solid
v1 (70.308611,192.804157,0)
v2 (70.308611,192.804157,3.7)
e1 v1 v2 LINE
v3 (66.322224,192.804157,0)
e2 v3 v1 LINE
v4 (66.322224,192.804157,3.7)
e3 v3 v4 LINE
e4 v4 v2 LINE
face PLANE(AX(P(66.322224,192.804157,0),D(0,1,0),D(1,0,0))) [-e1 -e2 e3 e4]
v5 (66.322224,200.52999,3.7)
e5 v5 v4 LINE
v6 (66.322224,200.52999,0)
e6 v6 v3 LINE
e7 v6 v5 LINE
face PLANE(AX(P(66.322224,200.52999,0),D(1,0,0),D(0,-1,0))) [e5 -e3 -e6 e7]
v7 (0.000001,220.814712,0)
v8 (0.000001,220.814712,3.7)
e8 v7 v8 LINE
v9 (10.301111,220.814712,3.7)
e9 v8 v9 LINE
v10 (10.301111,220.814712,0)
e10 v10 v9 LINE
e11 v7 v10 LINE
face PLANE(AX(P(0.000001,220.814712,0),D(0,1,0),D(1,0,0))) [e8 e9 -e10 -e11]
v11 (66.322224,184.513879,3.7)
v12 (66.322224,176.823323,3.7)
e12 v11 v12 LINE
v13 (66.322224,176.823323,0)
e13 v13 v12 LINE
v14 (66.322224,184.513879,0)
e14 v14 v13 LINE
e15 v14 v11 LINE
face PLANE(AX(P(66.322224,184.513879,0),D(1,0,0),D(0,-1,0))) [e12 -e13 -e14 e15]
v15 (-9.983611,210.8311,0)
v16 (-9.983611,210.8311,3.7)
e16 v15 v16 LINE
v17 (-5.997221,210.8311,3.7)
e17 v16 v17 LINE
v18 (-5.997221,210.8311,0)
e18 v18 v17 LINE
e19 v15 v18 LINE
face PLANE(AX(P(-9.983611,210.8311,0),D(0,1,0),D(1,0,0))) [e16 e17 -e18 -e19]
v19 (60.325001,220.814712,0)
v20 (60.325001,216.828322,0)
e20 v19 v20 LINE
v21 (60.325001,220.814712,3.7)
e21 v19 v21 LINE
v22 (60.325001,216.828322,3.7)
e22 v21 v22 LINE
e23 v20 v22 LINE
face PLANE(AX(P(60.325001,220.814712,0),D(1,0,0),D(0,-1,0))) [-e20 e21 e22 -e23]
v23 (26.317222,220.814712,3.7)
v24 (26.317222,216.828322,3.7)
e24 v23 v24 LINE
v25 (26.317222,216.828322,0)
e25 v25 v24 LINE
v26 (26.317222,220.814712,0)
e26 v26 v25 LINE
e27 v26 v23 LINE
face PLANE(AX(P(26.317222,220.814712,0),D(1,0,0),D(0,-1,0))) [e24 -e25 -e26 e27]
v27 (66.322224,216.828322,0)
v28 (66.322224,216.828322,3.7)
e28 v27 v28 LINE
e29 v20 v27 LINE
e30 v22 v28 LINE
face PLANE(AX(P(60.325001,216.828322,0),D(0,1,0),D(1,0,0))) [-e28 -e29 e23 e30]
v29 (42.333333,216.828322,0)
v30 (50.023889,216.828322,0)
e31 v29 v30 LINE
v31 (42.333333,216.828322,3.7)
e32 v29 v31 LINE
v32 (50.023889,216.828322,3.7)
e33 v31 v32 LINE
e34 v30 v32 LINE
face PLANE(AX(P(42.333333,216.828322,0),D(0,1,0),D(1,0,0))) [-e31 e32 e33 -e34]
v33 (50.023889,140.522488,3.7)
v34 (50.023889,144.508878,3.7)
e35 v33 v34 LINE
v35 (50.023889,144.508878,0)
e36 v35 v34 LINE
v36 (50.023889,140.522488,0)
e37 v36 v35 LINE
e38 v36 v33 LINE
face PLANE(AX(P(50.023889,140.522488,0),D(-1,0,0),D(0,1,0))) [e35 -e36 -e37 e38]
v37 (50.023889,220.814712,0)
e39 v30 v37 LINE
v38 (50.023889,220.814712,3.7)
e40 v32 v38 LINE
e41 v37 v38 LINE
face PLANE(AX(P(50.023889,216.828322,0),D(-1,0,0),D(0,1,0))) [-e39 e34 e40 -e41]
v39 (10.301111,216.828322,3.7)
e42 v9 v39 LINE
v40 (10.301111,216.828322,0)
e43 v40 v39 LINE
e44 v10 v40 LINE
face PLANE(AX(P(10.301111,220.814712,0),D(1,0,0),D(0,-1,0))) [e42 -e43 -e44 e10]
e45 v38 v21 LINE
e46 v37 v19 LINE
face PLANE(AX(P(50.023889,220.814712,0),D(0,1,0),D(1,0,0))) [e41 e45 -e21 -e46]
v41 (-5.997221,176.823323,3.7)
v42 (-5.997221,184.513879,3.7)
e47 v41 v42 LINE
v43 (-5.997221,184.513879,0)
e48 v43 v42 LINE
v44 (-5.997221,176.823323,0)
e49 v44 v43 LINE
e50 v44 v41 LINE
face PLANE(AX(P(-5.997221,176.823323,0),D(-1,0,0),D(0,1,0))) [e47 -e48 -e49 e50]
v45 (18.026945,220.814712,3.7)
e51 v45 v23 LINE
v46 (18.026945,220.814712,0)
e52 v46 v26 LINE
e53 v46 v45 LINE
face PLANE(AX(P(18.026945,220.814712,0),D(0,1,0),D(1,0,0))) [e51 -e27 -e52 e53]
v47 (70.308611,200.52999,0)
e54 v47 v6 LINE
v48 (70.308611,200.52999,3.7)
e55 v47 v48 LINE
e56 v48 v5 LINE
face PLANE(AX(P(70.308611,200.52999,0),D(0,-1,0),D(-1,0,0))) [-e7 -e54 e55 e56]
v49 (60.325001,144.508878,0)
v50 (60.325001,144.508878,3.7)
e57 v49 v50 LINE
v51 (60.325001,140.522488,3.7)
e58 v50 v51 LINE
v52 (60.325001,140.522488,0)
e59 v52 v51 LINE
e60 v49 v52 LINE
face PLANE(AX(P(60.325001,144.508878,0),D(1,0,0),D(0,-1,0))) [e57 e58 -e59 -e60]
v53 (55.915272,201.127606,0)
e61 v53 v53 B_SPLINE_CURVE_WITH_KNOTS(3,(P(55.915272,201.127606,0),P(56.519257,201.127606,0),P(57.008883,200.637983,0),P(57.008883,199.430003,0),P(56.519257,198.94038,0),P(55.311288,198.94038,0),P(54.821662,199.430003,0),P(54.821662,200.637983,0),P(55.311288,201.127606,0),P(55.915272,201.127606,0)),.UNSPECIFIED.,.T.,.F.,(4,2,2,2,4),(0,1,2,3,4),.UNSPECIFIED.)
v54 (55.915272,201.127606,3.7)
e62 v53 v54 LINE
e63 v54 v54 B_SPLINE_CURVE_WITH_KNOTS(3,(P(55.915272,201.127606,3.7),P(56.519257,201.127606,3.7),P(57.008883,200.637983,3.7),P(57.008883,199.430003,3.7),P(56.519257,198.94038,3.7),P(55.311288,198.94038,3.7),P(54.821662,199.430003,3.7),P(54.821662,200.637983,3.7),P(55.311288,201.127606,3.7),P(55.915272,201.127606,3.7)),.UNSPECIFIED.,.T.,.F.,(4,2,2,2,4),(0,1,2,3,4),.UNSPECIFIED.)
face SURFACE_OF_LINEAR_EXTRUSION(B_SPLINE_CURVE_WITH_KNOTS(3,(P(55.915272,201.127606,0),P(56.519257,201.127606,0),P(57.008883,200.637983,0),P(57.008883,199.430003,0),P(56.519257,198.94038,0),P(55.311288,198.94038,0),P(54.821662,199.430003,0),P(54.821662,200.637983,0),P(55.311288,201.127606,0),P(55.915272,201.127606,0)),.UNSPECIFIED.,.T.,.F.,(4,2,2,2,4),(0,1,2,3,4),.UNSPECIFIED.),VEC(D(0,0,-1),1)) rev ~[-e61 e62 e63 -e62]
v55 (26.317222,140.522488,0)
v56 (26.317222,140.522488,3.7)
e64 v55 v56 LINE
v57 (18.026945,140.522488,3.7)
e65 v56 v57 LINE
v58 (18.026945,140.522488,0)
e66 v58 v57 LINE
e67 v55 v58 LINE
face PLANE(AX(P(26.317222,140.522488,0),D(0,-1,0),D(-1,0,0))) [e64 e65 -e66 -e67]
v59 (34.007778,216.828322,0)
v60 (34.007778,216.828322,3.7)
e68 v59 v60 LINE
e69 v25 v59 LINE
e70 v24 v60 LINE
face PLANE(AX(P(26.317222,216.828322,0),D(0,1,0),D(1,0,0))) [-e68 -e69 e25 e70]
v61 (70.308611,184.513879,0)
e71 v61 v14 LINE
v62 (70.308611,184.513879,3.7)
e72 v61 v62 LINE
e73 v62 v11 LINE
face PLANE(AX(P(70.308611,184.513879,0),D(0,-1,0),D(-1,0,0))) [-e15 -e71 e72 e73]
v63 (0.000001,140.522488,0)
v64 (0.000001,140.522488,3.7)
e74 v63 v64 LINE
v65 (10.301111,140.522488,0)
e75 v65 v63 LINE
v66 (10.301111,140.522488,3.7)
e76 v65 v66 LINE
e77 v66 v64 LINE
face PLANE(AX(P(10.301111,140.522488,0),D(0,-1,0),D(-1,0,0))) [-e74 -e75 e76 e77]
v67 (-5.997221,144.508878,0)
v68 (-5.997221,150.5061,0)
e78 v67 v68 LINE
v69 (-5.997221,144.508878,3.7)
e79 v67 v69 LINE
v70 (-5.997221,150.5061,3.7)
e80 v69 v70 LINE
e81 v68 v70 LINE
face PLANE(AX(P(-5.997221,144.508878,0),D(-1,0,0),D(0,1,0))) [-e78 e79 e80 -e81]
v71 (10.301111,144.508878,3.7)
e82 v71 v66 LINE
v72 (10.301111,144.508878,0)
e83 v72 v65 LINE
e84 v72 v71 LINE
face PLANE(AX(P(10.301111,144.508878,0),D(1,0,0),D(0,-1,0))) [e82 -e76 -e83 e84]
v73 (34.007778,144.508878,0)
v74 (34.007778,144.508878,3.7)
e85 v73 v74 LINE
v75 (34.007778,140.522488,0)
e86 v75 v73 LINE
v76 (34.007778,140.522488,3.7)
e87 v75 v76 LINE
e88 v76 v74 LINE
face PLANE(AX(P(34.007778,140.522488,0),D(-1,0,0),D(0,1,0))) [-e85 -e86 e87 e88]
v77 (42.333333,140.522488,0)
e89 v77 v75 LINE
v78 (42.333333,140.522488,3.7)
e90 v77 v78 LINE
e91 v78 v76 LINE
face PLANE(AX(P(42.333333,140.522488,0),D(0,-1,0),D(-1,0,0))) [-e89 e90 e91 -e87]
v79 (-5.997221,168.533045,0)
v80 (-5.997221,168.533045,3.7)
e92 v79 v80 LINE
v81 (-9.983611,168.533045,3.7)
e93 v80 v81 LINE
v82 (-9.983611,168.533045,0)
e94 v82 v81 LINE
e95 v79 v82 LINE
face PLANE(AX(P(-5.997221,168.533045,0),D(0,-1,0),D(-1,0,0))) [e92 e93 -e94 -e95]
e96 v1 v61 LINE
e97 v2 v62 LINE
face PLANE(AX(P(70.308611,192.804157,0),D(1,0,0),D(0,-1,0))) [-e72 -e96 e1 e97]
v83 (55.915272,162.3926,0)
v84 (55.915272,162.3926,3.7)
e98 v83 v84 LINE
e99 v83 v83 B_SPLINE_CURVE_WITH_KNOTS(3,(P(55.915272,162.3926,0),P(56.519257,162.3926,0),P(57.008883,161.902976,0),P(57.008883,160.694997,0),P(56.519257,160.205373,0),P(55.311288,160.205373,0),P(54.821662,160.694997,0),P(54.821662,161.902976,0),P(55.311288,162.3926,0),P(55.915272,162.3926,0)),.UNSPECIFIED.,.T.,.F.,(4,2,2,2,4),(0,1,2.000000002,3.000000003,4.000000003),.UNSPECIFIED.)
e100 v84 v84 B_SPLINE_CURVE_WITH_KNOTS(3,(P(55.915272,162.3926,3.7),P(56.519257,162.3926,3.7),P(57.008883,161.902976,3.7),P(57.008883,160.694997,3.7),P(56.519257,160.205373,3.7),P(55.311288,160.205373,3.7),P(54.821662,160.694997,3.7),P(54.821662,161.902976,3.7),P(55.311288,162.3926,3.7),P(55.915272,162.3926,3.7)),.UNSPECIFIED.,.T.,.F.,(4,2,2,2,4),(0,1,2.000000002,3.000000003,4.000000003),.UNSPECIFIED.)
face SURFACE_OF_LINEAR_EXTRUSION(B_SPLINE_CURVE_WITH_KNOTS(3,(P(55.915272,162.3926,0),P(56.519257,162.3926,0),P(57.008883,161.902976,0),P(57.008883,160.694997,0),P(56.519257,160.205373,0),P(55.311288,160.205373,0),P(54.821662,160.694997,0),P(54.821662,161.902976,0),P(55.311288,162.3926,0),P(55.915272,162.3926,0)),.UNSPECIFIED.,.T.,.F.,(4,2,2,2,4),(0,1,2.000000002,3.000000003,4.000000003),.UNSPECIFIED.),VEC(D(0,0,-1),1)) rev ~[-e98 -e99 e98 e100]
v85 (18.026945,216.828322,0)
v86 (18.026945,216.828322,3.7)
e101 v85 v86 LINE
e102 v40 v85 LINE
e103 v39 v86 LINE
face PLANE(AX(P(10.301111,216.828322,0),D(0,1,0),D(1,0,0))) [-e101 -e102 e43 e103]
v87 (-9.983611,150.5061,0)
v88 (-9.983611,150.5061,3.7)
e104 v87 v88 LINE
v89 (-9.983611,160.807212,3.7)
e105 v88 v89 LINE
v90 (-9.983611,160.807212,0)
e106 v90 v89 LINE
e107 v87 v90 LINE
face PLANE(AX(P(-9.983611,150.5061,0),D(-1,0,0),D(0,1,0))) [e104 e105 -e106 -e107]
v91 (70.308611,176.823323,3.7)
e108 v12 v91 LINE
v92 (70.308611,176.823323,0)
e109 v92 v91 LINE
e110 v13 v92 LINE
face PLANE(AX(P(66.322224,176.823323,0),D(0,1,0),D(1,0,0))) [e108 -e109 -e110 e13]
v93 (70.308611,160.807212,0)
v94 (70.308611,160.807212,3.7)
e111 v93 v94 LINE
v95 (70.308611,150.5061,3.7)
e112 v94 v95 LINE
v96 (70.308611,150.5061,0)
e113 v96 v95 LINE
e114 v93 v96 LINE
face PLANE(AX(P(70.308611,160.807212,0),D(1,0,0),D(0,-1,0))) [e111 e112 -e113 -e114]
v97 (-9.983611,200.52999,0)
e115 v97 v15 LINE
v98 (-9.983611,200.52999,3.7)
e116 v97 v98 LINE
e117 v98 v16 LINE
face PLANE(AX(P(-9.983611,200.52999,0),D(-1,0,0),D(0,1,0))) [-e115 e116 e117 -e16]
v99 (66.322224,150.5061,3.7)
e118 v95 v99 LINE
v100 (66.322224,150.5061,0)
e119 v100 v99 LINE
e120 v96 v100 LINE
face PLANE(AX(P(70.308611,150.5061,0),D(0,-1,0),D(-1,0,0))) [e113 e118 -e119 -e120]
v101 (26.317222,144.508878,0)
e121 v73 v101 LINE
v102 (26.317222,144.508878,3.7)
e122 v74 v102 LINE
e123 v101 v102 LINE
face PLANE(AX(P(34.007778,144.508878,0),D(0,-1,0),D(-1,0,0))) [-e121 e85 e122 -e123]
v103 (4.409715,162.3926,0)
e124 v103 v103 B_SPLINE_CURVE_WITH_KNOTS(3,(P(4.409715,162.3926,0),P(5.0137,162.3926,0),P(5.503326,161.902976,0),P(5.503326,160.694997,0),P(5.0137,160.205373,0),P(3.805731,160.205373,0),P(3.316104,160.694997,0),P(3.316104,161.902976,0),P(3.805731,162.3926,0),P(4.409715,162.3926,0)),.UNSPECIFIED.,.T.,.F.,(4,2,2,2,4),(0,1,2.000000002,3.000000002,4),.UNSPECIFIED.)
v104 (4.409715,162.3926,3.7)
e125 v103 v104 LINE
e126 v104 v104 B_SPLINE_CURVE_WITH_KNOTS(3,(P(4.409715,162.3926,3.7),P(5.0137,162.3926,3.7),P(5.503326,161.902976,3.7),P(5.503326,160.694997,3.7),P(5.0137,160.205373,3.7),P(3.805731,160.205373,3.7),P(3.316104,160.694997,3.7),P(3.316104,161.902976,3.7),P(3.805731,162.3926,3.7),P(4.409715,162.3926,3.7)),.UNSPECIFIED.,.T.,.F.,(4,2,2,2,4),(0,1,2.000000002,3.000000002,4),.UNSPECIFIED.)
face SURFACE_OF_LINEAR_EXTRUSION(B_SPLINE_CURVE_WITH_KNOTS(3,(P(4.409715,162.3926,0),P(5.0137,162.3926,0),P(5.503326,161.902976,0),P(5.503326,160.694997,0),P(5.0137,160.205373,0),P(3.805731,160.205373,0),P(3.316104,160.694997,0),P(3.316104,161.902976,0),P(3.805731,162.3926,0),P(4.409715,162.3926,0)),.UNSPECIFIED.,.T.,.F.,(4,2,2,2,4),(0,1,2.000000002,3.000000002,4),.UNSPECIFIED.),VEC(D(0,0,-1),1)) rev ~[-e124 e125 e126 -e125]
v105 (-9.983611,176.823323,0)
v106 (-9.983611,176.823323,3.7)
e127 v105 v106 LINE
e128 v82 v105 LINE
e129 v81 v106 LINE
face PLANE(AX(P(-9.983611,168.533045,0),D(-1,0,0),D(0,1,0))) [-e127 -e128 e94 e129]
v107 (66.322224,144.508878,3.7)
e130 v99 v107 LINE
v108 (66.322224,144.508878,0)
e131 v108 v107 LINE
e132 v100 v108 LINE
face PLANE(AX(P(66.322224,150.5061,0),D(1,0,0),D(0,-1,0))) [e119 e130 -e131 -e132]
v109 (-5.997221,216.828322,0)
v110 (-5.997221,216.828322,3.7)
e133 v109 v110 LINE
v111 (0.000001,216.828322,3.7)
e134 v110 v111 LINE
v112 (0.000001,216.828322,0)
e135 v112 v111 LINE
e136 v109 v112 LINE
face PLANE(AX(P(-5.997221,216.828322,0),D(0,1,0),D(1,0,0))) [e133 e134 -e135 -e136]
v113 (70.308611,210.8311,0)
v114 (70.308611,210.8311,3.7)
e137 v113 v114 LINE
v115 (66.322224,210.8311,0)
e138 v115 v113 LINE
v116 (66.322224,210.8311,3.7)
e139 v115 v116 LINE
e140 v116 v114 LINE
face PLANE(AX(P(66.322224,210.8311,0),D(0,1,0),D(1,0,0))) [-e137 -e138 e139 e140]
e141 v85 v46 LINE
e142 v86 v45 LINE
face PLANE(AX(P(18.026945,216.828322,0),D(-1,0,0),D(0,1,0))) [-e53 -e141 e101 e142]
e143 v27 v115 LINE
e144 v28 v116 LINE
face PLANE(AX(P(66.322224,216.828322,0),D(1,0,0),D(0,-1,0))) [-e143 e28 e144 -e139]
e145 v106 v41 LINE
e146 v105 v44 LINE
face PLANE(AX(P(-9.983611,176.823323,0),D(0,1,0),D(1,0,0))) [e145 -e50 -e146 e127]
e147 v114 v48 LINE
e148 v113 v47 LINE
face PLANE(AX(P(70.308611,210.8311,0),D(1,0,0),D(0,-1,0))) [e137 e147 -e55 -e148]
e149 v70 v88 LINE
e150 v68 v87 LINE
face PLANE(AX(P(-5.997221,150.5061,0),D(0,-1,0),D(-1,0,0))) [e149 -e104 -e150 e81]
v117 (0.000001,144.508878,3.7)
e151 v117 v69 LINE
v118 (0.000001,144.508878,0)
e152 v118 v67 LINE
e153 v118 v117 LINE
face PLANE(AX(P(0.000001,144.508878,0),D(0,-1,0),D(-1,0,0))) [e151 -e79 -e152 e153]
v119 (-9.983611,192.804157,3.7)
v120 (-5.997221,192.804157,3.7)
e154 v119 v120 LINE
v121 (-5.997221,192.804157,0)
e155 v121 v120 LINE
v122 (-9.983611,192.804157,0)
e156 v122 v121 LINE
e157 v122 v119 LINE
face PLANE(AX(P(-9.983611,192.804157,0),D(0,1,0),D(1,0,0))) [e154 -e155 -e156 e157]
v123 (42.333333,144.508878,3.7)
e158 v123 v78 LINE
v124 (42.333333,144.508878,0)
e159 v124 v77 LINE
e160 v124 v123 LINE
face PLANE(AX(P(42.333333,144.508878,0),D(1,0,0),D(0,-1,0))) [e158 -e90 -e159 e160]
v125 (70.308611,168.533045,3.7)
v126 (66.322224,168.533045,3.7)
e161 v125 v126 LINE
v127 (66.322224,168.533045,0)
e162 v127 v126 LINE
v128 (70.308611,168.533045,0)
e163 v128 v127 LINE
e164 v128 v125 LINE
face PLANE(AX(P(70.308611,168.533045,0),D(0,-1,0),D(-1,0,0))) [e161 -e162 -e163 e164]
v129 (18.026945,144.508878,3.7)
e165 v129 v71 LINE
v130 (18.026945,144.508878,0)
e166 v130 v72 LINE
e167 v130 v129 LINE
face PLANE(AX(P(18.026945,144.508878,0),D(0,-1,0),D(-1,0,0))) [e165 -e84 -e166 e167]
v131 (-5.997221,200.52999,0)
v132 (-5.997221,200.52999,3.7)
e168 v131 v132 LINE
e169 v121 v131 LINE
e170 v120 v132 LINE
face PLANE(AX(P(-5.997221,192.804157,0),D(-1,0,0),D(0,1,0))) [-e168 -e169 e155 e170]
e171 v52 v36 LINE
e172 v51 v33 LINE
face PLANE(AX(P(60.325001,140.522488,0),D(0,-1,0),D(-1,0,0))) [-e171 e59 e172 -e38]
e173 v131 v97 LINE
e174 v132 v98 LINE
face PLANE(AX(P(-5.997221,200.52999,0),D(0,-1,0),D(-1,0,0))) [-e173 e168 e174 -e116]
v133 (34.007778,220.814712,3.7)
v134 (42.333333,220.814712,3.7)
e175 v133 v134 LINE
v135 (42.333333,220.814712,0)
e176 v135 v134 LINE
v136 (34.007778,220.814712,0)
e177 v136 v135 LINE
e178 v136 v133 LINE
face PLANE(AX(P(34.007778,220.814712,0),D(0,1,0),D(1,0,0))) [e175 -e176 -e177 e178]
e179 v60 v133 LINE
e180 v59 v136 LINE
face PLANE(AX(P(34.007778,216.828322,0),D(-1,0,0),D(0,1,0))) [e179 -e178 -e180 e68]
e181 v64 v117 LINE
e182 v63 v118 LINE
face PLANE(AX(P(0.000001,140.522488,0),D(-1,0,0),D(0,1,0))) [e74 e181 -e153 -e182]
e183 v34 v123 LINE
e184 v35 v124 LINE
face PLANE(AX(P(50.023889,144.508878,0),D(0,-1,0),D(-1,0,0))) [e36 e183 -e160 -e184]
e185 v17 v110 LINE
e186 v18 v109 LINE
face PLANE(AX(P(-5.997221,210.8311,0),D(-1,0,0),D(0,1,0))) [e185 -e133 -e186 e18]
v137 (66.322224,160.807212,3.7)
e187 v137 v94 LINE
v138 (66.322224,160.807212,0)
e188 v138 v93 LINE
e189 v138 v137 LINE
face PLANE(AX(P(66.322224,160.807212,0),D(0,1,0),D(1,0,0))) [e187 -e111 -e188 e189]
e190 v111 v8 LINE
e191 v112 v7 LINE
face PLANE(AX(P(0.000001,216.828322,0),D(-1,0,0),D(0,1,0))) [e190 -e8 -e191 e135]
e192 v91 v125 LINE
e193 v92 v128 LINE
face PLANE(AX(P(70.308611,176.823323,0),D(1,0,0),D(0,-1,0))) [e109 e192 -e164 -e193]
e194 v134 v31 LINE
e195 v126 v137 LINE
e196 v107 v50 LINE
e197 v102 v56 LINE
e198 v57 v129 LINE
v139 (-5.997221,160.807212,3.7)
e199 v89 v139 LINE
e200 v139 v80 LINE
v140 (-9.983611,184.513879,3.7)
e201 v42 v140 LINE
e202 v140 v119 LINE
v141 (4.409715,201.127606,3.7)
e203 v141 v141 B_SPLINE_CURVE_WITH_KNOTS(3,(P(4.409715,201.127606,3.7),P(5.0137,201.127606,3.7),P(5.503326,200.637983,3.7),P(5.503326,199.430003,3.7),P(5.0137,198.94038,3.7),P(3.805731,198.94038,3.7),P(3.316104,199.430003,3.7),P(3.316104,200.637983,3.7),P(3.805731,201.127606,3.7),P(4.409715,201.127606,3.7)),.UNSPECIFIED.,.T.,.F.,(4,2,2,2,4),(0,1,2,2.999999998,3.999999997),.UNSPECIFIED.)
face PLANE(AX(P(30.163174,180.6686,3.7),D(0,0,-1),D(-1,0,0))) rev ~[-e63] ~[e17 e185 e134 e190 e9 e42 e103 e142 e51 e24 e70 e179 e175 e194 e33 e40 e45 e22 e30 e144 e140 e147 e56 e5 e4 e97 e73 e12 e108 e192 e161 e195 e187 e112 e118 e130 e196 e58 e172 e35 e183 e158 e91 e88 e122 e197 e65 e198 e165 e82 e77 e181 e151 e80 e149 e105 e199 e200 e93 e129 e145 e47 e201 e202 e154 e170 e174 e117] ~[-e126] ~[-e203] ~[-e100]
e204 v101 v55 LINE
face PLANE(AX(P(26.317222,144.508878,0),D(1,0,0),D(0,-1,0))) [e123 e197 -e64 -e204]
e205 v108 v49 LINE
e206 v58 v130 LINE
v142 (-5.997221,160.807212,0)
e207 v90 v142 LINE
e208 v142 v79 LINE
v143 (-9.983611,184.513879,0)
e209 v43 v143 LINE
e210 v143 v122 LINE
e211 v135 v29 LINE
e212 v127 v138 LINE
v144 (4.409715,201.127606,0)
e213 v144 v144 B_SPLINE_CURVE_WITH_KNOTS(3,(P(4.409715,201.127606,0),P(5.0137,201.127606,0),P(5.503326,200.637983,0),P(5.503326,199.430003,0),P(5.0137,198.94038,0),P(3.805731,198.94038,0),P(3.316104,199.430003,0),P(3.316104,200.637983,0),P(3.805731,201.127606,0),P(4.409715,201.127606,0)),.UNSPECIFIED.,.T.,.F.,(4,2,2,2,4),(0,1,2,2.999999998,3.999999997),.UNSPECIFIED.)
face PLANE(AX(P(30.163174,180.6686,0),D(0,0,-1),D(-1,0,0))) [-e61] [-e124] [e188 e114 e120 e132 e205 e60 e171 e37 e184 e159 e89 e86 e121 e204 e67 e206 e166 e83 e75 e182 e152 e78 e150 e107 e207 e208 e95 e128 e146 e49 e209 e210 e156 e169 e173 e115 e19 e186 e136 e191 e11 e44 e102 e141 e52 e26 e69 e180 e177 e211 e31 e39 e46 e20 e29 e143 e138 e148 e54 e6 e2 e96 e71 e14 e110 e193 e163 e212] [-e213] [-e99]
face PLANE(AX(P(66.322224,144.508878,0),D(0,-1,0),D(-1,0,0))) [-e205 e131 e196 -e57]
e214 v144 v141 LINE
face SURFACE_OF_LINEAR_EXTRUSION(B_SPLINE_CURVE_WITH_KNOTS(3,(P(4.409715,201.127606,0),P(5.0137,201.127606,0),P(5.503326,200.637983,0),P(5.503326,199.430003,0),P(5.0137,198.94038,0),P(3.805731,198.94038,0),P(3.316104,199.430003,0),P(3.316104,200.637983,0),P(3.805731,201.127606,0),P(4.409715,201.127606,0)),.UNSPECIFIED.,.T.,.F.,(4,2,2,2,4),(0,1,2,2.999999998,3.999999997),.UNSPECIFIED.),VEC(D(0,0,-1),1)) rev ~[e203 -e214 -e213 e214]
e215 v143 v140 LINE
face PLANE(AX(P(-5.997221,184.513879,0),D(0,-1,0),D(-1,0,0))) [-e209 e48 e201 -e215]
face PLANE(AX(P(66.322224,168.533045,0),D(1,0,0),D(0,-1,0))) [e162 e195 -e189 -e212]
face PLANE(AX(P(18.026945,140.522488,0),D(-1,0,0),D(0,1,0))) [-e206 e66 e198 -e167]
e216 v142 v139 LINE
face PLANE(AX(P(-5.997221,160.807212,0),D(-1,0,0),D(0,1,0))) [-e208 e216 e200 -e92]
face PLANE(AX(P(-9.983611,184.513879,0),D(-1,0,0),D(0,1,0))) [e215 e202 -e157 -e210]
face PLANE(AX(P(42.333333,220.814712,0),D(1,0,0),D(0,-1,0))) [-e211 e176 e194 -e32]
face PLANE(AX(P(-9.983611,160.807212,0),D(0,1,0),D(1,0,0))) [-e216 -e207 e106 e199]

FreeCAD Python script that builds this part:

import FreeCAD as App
import Part
import Sketcher
from FreeCAD import Vector
Q = App.Units.Quantity

doc = App.newDocument("Part")
body = doc.addObject("PartDesign::Body", "Body")

# Sketch on XY plane
sketch1 = body.newObject("Sketcher::SketchObject", "Sketch")
sketch1.AttachmentSupport = (doc.getObject("XY_Plane"), [""])
sketch1.MapMode = "FlatFace"
sketch1.addGeometry(Part.LineSegment(Vector(0.000001, 216.828322, 0), Vector(-5.997221, 216.828322, 0)), False)
sketch1.addGeometry(Part.LineSegment(Vector(-5.997221, 216.828322, 0), Vector(-5.997221, 210.8311, 0)), False)
sketch1.addGeometry(Part.LineSegment(Vector(-5.997221, 210.8311, 0), Vector(-9.983611, 210.8311, 0)), False)
sketch1.addGeometry(Part.LineSegment(Vector(-9.983611, 210.8311, 0), Vector(-9.983611, 200.52999, 0)), False)
sketch1.addGeometry(Part.LineSegment(Vector(-9.983611, 200.52999, 0), Vector(-5.997221, 200.52999, 0)), False)
sketch1.addGeometry(Part.LineSegment(Vector(-5.997221, 200.52999, 0), Vector(-5.997221, 192.804157, 0)), False)
sketch1.addGeometry(Part.LineSegment(Vector(-5.997221, 192.804157, 0), Vector(-9.983611, 192.804157, 0)), False)
sketch1.addGeometry(Part.LineSegment(Vector(-9.983611, 192.804157, 0), Vector(-9.983611, 184.513879, 0)), False)
sketch1.addGeometry(Part.LineSegment(Vector(-9.983611, 184.513879, 0), Vector(-5.997221, 184.513879, 0)), False)
sketch1.addGeometry(Part.LineSegment(Vector(-5.997221, 184.513879, 0), Vector(-5.997221, 176.823323, 0)), False)
sketch1.addGeometry(Part.LineSegment(Vector(-5.997221, 176.823323, 0), Vector(-9.983611, 176.823323, 0)), False)
sketch1.addGeometry(Part.LineSegment(Vector(-9.983611, 176.823323, 0), Vector(-9.983611, 168.533045, 0)), False)
sketch1.addGeometry(Part.LineSegment(Vector(-9.983611, 168.533045, 0), Vector(-5.997221, 168.533045, 0)), False)
sketch1.addGeometry(Part.LineSegment(Vector(-5.997221, 168.533045, 0), Vector(-5.997221, 160.807212, 0)), False)
sketch1.addGeometry(Part.LineSegment(Vector(-5.997221, 160.807212, 0), Vector(-9.983611, 160.807212, 0)), False)
sketch1.addGeometry(Part.LineSegment(Vector(-9.983611, 160.807212, 0), Vector(-9.983611, 150.5061, 0)), False)
sketch1.addGeometry(Part.LineSegment(Vector(-9.983611, 150.5061, 0), Vector(-5.997221, 150.5061, 0)), False)
sketch1.addGeometry(Part.LineSegment(Vector(-5.997221, 150.5061, 0), Vector(-5.997221, 144.508878, 0)), False)
sketch1.addGeometry(Part.LineSegment(Vector(-5.997221, 144.508878, 0), Vector(0.000001, 144.508878, 0)), False)
sketch1.addGeometry(Part.LineSegment(Vector(0.000001, 144.508878, 0), Vector(0.000001, 140.522488, 0)), False)
sketch1.addGeometry(Part.LineSegment(Vector(0.000001, 140.522488, 0), Vector(10.301111, 140.522488, 0)), False)
sketch1.addGeometry(Part.LineSegment(Vector(10.301111, 140.522488, 0), Vector(10.301111, 144.508878, 0)), False)
sketch1.addGeometry(Part.LineSegment(Vector(10.301111, 144.508878, 0), Vector(18.026945, 144.508878, 0)), False)
sketch1.addGeometry(Part.LineSegment(Vector(18.026945, 144.508878, 0), Vector(18.026945, 140.522488, 0)), False)
sketch1.addGeometry(Part.LineSegment(Vector(18.026945, 140.522488, 0), Vector(26.317222, 140.522488, 0)), False)
sketch1.addGeometry(Part.LineSegment(Vector(26.317222, 140.522488, 0), Vector(26.317222, 144.508878, 0)), False)
sketch1.addGeometry(Part.LineSegment(Vector(26.317222, 144.508878, 0), Vector(34.007778, 144.508878, 0)), False)
sketch1.addGeometry(Part.LineSegment(Vector(34.007778, 144.508878, 0), Vector(34.007778, 140.522488, 0)), False)
sketch1.addGeometry(Part.LineSegment(Vector(34.007778, 140.522488, 0), Vector(42.333333, 140.522488, 0)), False)
sketch1.addGeometry(Part.LineSegment(Vector(42.333333, 140.522488, 0), Vector(42.333333, 144.508878, 0)), False)
sketch1.addGeometry(Part.LineSegment(Vector(42.333333, 144.508878, 0), Vector(50.023889, 144.508878, 0)), False)
sketch1.addGeometry(Part.LineSegment(Vector(50.023889, 144.508878, 0), Vector(50.023889, 140.522488, 0)), False)
sketch1.addGeometry(Part.LineSegment(Vector(50.023889, 140.522488, 0), Vector(60.325001, 140.522488, 0)), False)
sketch1.addGeometry(Part.LineSegment(Vector(60.325001, 140.522488, 0), Vector(60.325001, 144.508878, 0)), False)
sketch1.addGeometry(Part.LineSegment(Vector(60.325001, 144.508878, 0), Vector(66.322224, 144.508878, 0)), False)
sketch1.addGeometry(Part.LineSegment(Vector(66.322224, 144.508878, 0), Vector(66.322224, 150.5061, 0)), False)
sketch1.addGeometry(Part.LineSegment(Vector(66.322224, 150.5061, 0), Vector(70.308611, 150.5061, 0)), False)
sketch1.addGeometry(Part.LineSegment(Vector(70.308611, 150.5061, 0), Vector(70.308611, 160.807212, 0)), False)
sketch1.addGeometry(Part.LineSegment(Vector(70.308611, 160.807212, 0), Vector(66.322224, 160.807212, 0)), False)
sketch1.addGeometry(Part.LineSegment(Vector(66.322224, 160.807212, 0), Vector(66.322224, 168.533045, 0)), False)
sketch1.addGeometry(Part.LineSegment(Vector(66.322224, 168.533045, 0), Vector(70.308611, 168.533045, 0)), False)
sketch1.addGeometry(Part.LineSegment(Vector(70.308611, 168.533045, 0), Vector(70.308611, 176.823323, 0)), False)
sketch1.addGeometry(Part.LineSegment(Vector(70.308611, 176.823323, 0), Vector(66.322224, 176.823323, 0)), False)
sketch1.addGeometry(Part.LineSegment(Vector(66.322224, 176.823323, 0), Vector(66.322224, 184.513879, 0)), False)
sketch1.addGeometry(Part.LineSegment(Vector(66.322224, 184.513879, 0), Vector(70.308611, 184.513879, 0)), False)
sketch1.addGeometry(Part.LineSegment(Vector(70.308611, 184.513879, 0), Vector(70.308611, 192.804157, 0)), False)
sketch1.addGeometry(Part.LineSegment(Vector(70.308611, 192.804157, 0), Vector(66.322224, 192.804157, 0)), False)
sketch1.addGeometry(Part.LineSegment(Vector(66.322224, 192.804157, 0), Vector(66.322224, 200.52999, 0)), False)
sketch1.addGeometry(Part.LineSegment(Vector(66.322224, 200.52999, 0), Vector(70.308611, 200.52999, 0)), False)
sketch1.addGeometry(Part.LineSegment(Vector(70.308611, 200.52999, 0), Vector(70.308611, 210.8311, 0)), False)
sketch1.addGeometry(Part.LineSegment(Vector(70.308611, 210.8311, 0), Vector(66.322224, 210.8311, 0)), False)
sketch1.addGeometry(Part.LineSegment(Vector(66.322224, 210.8311, 0), Vector(66.322224, 216.828322, 0)), False)
sketch1.addGeometry(Part.LineSegment(Vector(66.322224, 216.828322, 0), Vector(60.325001, 216.828322, 0)), False)
sketch1.addGeometry(Part.LineSegment(Vector(60.325001, 216.828322, 0), Vector(60.325001, 220.814712, 0)), False)
sketch1.addGeometry(Part.LineSegment(Vector(60.325001, 220.814712, 0), Vector(50.023889, 220.814712, 0)), False)
sketch1.addGeometry(Part.LineSegment(Vector(50.023889, 220.814712, 0), Vector(50.023889, 216.828322, 0)), False)
sketch1.addGeometry(Part.LineSegment(Vector(50.023889, 216.828322, 0), Vector(42.333333, 216.828322, 0)), False)
sketch1.addGeometry(Part.LineSegment(Vector(42.333333, 216.828322, 0), Vector(42.333333, 220.814712, 0)), False)
sketch1.addGeometry(Part.LineSegment(Vector(42.333333, 220.814712, 0), Vector(34.007778, 220.814712, 0)), False)
sketch1.addGeometry(Part.LineSegment(Vector(34.007778, 220.814712, 0), Vector(34.007778, 216.828322, 0)), False)
sketch1.addGeometry(Part.LineSegment(Vector(34.007778, 216.828322, 0), Vector(26.317222, 216.828322, 0)), False)
sketch1.addGeometry(Part.LineSegment(Vector(26.317222, 216.828322, 0), Vector(26.317222, 220.814712, 0)), False)
sketch1.addGeometry(Part.LineSegment(Vector(26.317222, 220.814712, 0), Vector(18.026945, 220.814712, 0)), False)
sketch1.addGeometry(Part.LineSegment(Vector(18.026945, 220.814712, 0), Vector(18.026945, 216.828322, 0)), False)
sketch1.addGeometry(Part.LineSegment(Vector(18.026945, 216.828322, 0), Vector(10.301111, 216.828322, 0)), False)
sketch1.addGeometry(Part.LineSegment(Vector(10.301111, 216.828322, 0), Vector(10.301111, 220.814712, 0)), False)
sketch1.addGeometry(Part.LineSegment(Vector(10.301111, 220.814712, 0), Vector(0.000001, 220.814712, 0)), False)
sketch1.addGeometry(Part.LineSegment(Vector(0.000001, 220.814712, 0), Vector(0.000001, 216.828322, 0)), False)
sketch1.addGeometry(Part.BSplineCurve([Vector(55.915272, 162.3926, 0), Vector(56.519257, 162.3926, 0), Vector(57.008883, 161.902976, 0), Vector(57.008883, 160.694997, 0), Vector(56.519257, 160.205373, 0), Vector(55.311288, 160.205373, 0), Vector(54.821662, 160.694997, 0), Vector(54.821662, 161.902976, 0), Vector(55.311288, 162.3926, 0), Vector(55.915272, 162.3926, 0)], [4, 2, 2, 2, 4], [0, 1, 2.000000002, 3.000000003, 4.000000003], False, 3, [1, 1, 1, 1, 1, 1, 1, 1, 1, 1], False), False)
sketch1.addGeometry(Part.BSplineCurve([Vector(4.409715, 162.3926, 0), Vector(5.0137, 162.3926, 0), Vector(5.503326, 161.902976, 0), Vector(5.503326, 160.694997, 0), Vector(5.0137, 160.205373, 0), Vector(3.805731, 160.205373, 0), Vector(3.316104, 160.694997, 0), Vector(3.316104, 161.902976, 0), Vector(3.805731, 162.3926, 0), Vector(4.409715, 162.3926, 0)], [4, 2, 2, 2, 4], [0, 1, 2.000000002, 3.000000002, 4], False, 3, [1, 1, 1, 1, 1, 1, 1, 1, 1, 1], False), False)
sketch1.addGeometry(Part.BSplineCurve([Vector(55.915272, 201.127606, 0), Vector(56.519257, 201.127606, 0), Vector(57.008883, 200.637983, 0), Vector(57.008883, 199.430003, 0), Vector(56.519257, 198.94038, 0), Vector(55.311288, 198.94038, 0), Vector(54.821662, 199.430003, 0), Vector(54.821662, 200.637983, 0), Vector(55.311288, 201.127606, 0), Vector(55.915272, 201.127606, 0)], [4, 2, 2, 2, 4], [0, 1, 2, 3, 4], False, 3, [1, 1, 1, 1, 1, 1, 1, 1, 1, 1], False), False)
sketch1.addGeometry(Part.BSplineCurve([Vector(4.409715, 201.127606, 0), Vector(5.0137, 201.127606, 0), Vector(5.503326, 200.637983, 0), Vector(5.503326, 199.430003, 0), Vector(5.0137, 198.94038, 0), Vector(3.805731, 198.94038, 0), Vector(3.316104, 199.430003, 0), Vector(3.316104, 200.637983, 0), Vector(3.805731, 201.127606, 0), Vector(4.409715, 201.127606, 0)], [4, 2, 2, 2, 4], [0, 1, 2, 2.999999998, 3.999999997], False, 3, [1, 1, 1, 1, 1, 1, 1, 1, 1, 1], False), False)
sketch1.addConstraint(Sketcher.Constraint("Block", 68))
sketch1.addConstraint(Sketcher.Constraint("Block", 69))
sketch1.addConstraint(Sketcher.Constraint("Block", 70))
sketch1.addConstraint(Sketcher.Constraint("Block", 71))
sketch1.addConstraint(Sketcher.Constraint("Coincident", 0, 2, 1, 1))
sketch1.addConstraint(Sketcher.Constraint("Coincident", 1, 2, 2, 1))
sketch1.addConstraint(Sketcher.Constraint("Coincident", 2, 2, 3, 1))
sketch1.addConstraint(Sketcher.Constraint("Coincident", 3, 2, 4, 1))
sketch1.addConstraint(Sketcher.Constraint("Coincident", 4, 2, 5, 1))
sketch1.addConstraint(Sketcher.Constraint("Coincident", 5, 2, 6, 1))
sketch1.addConstraint(Sketcher.Constraint("Coincident", 6, 2, 7, 1))
sketch1.addConstraint(Sketcher.Constraint("Coincident", 7, 2, 8, 1))
sketch1.addConstraint(Sketcher.Constraint("Coincident", 8, 2, 9, 1))
sketch1.addConstraint(Sketcher.Constraint("Coincident", 9, 2, 10, 1))
sketch1.addConstraint(Sketcher.Constraint("Coincident", 10, 2, 11, 1))
sketch1.addConstraint(Sketcher.Constraint("Coincident", 11, 2, 12, 1))
sketch1.addConstraint(Sketcher.Constraint("Coincident", 12, 2, 13, 1))
sketch1.addConstraint(Sketcher.Constraint("Coincident", 13, 2, 14, 1))
sketch1.addConstraint(Sketcher.Constraint("Coincident", 14, 2, 15, 1))
sketch1.addConstraint(Sketcher.Constraint("Coincident", 15, 2, 16, 1))
sketch1.addConstraint(Sketcher.Constraint("Coincident", 16, 2, 17, 1))
sketch1.addConstraint(Sketcher.Constraint("Coincident", 17, 2, 18, 1))
sketch1.addConstraint(Sketcher.Constraint("Coincident", 18, 2, 19, 1))
sketch1.addConstraint(Sketcher.Constraint("Coincident", 19, 2, 20, 1))
sketch1.addConstraint(Sketcher.Constraint("Coincident", 20, 2, 21, 1))
sketch1.addConstraint(Sketcher.Constraint("Coincident", 21, 2, 22, 1))
sketch1.addConstraint(Sketcher.Constraint("Coincident", 22, 2, 23, 1))
sketch1.addConstraint(Sketcher.Constraint("Coincident", 23, 2, 24, 1))
sketch1.addConstraint(Sketcher.Constraint("Coincident", 24, 2, 25, 1))
sketch1.addConstraint(Sketcher.Constraint("Coincident", 25, 2, 26, 1))
sketch1.addConstraint(Sketcher.Constraint("Coincident", 26, 2, 27, 1))
sketch1.addConstraint(Sketcher.Constraint("Coincident", 27, 2, 28, 1))
sketch1.addConstraint(Sketcher.Constraint("Coincident", 28, 2, 29, 1))
sketch1.addConstraint(Sketcher.Constraint("Coincident", 29, 2, 30, 1))
sketch1.addConstraint(Sketcher.Constraint("Coincident", 30, 2, 31, 1))
sketch1.addConstraint(Sketcher.Constraint("Coincident", 31, 2, 32, 1))
sketch1.addConstraint(Sketcher.Constraint("Coincident", 32, 2, 33, 1))
sketch1.addConstraint(Sketcher.Constraint("Coincident", 33, 2, 34, 1))
sketch1.addConstraint(Sketcher.Constraint("Coincident", 34, 2, 35, 1))
sketch1.addConstraint(Sketcher.Constraint("Coincident", 35, 2, 36, 1))
sketch1.addConstraint(Sketcher.Constraint("Coincident", 36, 2, 37, 1))
sketch1.addConstraint(Sketcher.Constraint("Coincident", 37, 2, 38, 1))
sketch1.addConstraint(Sketcher.Constraint("Coincident", 38, 2, 39, 1))
sketch1.addConstraint(Sketcher.Constraint("Coincident", 39, 2, 40, 1))
sketch1.addConstraint(Sketcher.Constraint("Coincident", 40, 2, 41, 1))
sketch1.addConstraint(Sketcher.Constraint("Coincident", 41, 2, 42, 1))
sketch1.addConstraint(Sketcher.Constraint("Coincident", 42, 2, 43, 1))
sketch1.addConstraint(Sketcher.Constraint("Coincident", 43, 2, 44, 1))
sketch1.addConstraint(Sketcher.Constraint("Coincident", 44, 2, 45, 1))
sketch1.addConstraint(Sketcher.Constraint("Coincident", 45, 2, 46, 1))
sketch1.addConstraint(Sketcher.Constraint("Coincident", 46, 2, 47, 1))
sketch1.addConstraint(Sketcher.Constraint("Coincident", 47, 2, 48, 1))
sketch1.addConstraint(Sketcher.Constraint("Coincident", 48, 2, 49, 1))
sketch1.addConstraint(Sketcher.Constraint("Coincident", 49, 2, 50, 1))
sketch1.addConstraint(Sketcher.Constraint("Coincident", 50, 2, 51, 1))
sketch1.addConstraint(Sketcher.Constraint("Coincident", 51, 2, 52, 1))
sketch1.addConstraint(Sketcher.Constraint("Coincident", 52, 2, 53, 1))
sketch1.addConstraint(Sketcher.Constraint("Coincident", 53, 2, 54, 1))
sketch1.addConstraint(Sketcher.Constraint("Coincident", 54, 2, 55, 1))
sketch1.addConstraint(Sketcher.Constraint("Coincident", 55, 2, 56, 1))
sketch1.addConstraint(Sketcher.Constraint("Coincident", 56, 2, 57, 1))
sketch1.addConstraint(Sketcher.Constraint("Coincident", 57, 2, 58, 1))
sketch1.addConstraint(Sketcher.Constraint("Coincident", 58, 2, 59, 1))
sketch1.addConstraint(Sketcher.Constraint("Coincident", 59, 2, 60, 1))
sketch1.addConstraint(Sketcher.Constraint("Coincident", 60, 2, 61, 1))
sketch1.addConstraint(Sketcher.Constraint("Coincident", 61, 2, 62, 1))
sketch1.addConstraint(Sketcher.Constraint("Coincident", 62, 2, 63, 1))
sketch1.addConstraint(Sketcher.Constraint("Coincident", 63, 2, 64, 1))
sketch1.addConstraint(Sketcher.Constraint("Coincident", 64, 2, 65, 1))
sketch1.addConstraint(Sketcher.Constraint("Coincident", 65, 2, 66, 1))
sketch1.addConstraint(Sketcher.Constraint("Coincident", 66, 2, 67, 1))
sketch1.addConstraint(Sketcher.Constraint("Coincident", 67, 2, 0, 1))
sketch1.addConstraint(Sketcher.Constraint("Horizontal", 0))
sketch1.addConstraint(Sketcher.Constraint("Vertical", 1))
sketch1.addConstraint(Sketcher.Constraint("Horizontal", 2))
sketch1.addConstraint(Sketcher.Constraint("Vertical", 3))
sketch1.addConstraint(Sketcher.Constraint("Horizontal", 4))
sketch1.addConstraint(Sketcher.Constraint("Vertical", 5))
sketch1.addConstraint(Sketcher.Constraint("Horizontal", 6))
sketch1.addConstraint(Sketcher.Constraint("Vertical", 7))
sketch1.addConstraint(Sketcher.Constraint("Horizontal", 8))
sketch1.addConstraint(Sketcher.Constraint("Vertical", 9))
sketch1.addConstraint(Sketcher.Constraint("Horizontal", 10))
sketch1.addConstraint(Sketcher.Constraint("Vertical", 11))
sketch1.addConstraint(Sketcher.Constraint("Horizontal", 12))
sketch1.addConstraint(Sketcher.Constraint("Vertical", 13))
sketch1.addConstraint(Sketcher.Constraint("Horizontal", 14))
sketch1.addConstraint(Sketcher.Constraint("Vertical", 15))
sketch1.addConstraint(Sketcher.Constraint("Horizontal", 16))
sketch1.addConstraint(Sketcher.Constraint("Vertical", 17))
sketch1.addConstraint(Sketcher.Constraint("Horizontal", 18))
sketch1.addConstraint(Sketcher.Constraint("Vertical", 19))
sketch1.addConstraint(Sketcher.Constraint("Horizontal", 20))
sketch1.addConstraint(Sketcher.Constraint("Vertical", 21))
sketch1.addConstraint(Sketcher.Constraint("Horizontal", 22))
sketch1.addConstraint(Sketcher.Constraint("Vertical", 23))
sketch1.addConstraint(Sketcher.Constraint("Horizontal", 24))
sketch1.addConstraint(Sketcher.Constraint("Vertical", 25))
sketch1.addConstraint(Sketcher.Constraint("Horizontal", 26))
sketch1.addConstraint(Sketcher.Constraint("Vertical", 27))
sketch1.addConstraint(Sketcher.Constraint("Horizontal", 28))
sketch1.addConstraint(Sketcher.Constraint("Vertical", 29))
sketch1.addConstraint(Sketcher.Constraint("Horizontal", 30))
sketch1.addConstraint(Sketcher.Constraint("Vertical", 31))
sketch1.addConstraint(Sketcher.Constraint("Horizontal", 32))
sketch1.addConstraint(Sketcher.Constraint("Vertical", 33))
sketch1.addConstraint(Sketcher.Constraint("Horizontal", 34))
sketch1.addConstraint(Sketcher.Constraint("Vertical", 35))
sketch1.addConstraint(Sketcher.Constraint("Horizontal", 36))
sketch1.addConstraint(Sketcher.Constraint("Vertical", 37))
sketch1.addConstraint(Sketcher.Constraint("Horizontal", 38))
sketch1.addConstraint(Sketcher.Constraint("Vertical", 39))
sketch1.addConstraint(Sketcher.Constraint("Horizontal", 40))
sketch1.addConstraint(Sketcher.Constraint("Vertical", 41))
sketch1.addConstraint(Sketcher.Constraint("Horizontal", 42))
sketch1.addConstraint(Sketcher.Constraint("Vertical", 43))
sketch1.addConstraint(Sketcher.Constraint("Horizontal", 44))
sketch1.addConstraint(Sketcher.Constraint("Vertical", 45))
sketch1.addConstraint(Sketcher.Constraint("Horizontal", 46))
sketch1.addConstraint(Sketcher.Constraint("Vertical", 47))
sketch1.addConstraint(Sketcher.Constraint("Horizontal", 48))
sketch1.addConstraint(Sketcher.Constraint("Vertical", 49))
sketch1.addConstraint(Sketcher.Constraint("Horizontal", 50))
sketch1.addConstraint(Sketcher.Constraint("Vertical", 51))
sketch1.addConstraint(Sketcher.Constraint("Horizontal", 52))
sketch1.addConstraint(Sketcher.Constraint("Vertical", 53))
sketch1.addConstraint(Sketcher.Constraint("Horizontal", 54))
sketch1.addConstraint(Sketcher.Constraint("Vertical", 55))
sketch1.addConstraint(Sketcher.Constraint("Horizontal", 56))
sketch1.addConstraint(Sketcher.Constraint("Vertical", 57))
sketch1.addConstraint(Sketcher.Constraint("Horizontal", 58))
sketch1.addConstraint(Sketcher.Constraint("Vertical", 59))
sketch1.addConstraint(Sketcher.Constraint("Horizontal", 60))
sketch1.addConstraint(Sketcher.Constraint("Vertical", 61))
sketch1.addConstraint(Sketcher.Constraint("Horizontal", 62))
sketch1.addConstraint(Sketcher.Constraint("Vertical", 63))
sketch1.addConstraint(Sketcher.Constraint("Horizontal", 64))
sketch1.addConstraint(Sketcher.Constraint("Vertical", 65))
sketch1.addConstraint(Sketcher.Constraint("Horizontal", 66))
sketch1.addConstraint(Sketcher.Constraint("Vertical", 67))
sketch1.addConstraint(Sketcher.Constraint("PointOnObject", 18, 2, -2))
sketch1.addConstraint(Sketcher.Constraint("PointOnObject", 66, 2, -2))
sketch1.addConstraint(Sketcher.Constraint("Horizontal", 18, 2, 21, 2))
sketch1.addConstraint(Sketcher.Constraint("Horizontal", 20, 2, 23, 2))
sketch1.addConstraint(Sketcher.Constraint("Horizontal", 22, 2, 25, 2))
sketch1.addConstraint(Sketcher.Constraint("Horizontal", 24, 2, 27, 2))
sketch1.addConstraint(Sketcher.Constraint("Horizontal", 26, 2, 29, 2))
sketch1.addConstraint(Sketcher.Constraint("Horizontal", 28, 2, 31, 2))
sketch1.addConstraint(Sketcher.Constraint("Horizontal", 30, 2, 33, 2))
sketch1.addConstraint(Sketcher.Constraint("Horizontal", 16, 2, 35, 2))
sketch1.addConstraint(Sketcher.Constraint("Horizontal", 14, 2, 37, 2))
sketch1.addConstraint(Sketcher.Constraint("Horizontal", 12, 2, 39, 2))
sketch1.addConstraint(Sketcher.Constraint("Horizontal", 10, 2, 41, 2))
sketch1.addConstraint(Sketcher.Constraint("Horizontal", 8, 2, 43, 2))
sketch1.addConstraint(Sketcher.Constraint("Horizontal", 6, 2, 45, 2))
sketch1.addConstraint(Sketcher.Constraint("Horizontal", 4, 2, 47, 2))
sketch1.addConstraint(Sketcher.Constraint("Horizontal", 2, 2, 49, 2))
sketch1.addConstraint(Sketcher.Constraint("Horizontal", 0, 2, 51, 2))
sketch1.addConstraint(Sketcher.Constraint("Horizontal", 52, 2, 55, 2))
sketch1.addConstraint(Sketcher.Constraint("Horizontal", 54, 2, 57, 2))
sketch1.addConstraint(Sketcher.Constraint("Horizontal", 56, 2, 59, 2))
sketch1.addConstraint(Sketcher.Constraint("Horizontal", 58, 2, 61, 2))
sketch1.addConstraint(Sketcher.Constraint("Horizontal", 60, 2, 63, 2))
sketch1.addConstraint(Sketcher.Constraint("Horizontal", 62, 2, 65, 2))
sketch1.addConstraint(Sketcher.Constraint("Vertical", 1, 2, 4, 2))
sketch1.addConstraint(Sketcher.Constraint("Vertical", 3, 2, 6, 2))
sketch1.addConstraint(Sketcher.Constraint("Vertical", 5, 2, 8, 2))
sketch1.addConstraint(Sketcher.Constraint("Vertical", 7, 2, 10, 2))
sketch1.addConstraint(Sketcher.Constraint("Vertical", 9, 2, 12, 2))
sketch1.addConstraint(Sketcher.Constraint("Vertical", 11, 2, 14, 2))
sketch1.addConstraint(Sketcher.Constraint("Vertical", 13, 2, 16, 2))
sketch1.addConstraint(Sketcher.Constraint("Vertical", 35, 2, 38, 2))
sketch1.addConstraint(Sketcher.Constraint("Vertical", 37, 2, 40, 2))
sketch1.addConstraint(Sketcher.Constraint("Vertical", 39, 2, 42, 2))
sketch1.addConstraint(Sketcher.Constraint("Vertical", 41, 2, 44, 2))
sketch1.addConstraint(Sketcher.Constraint("Vertical", 43, 2, 46, 2))
sketch1.addConstraint(Sketcher.Constraint("Vertical", 45, 2, 48, 2))
sketch1.addConstraint(Sketcher.Constraint("Vertical", 47, 2, 50, 2))
sketch1.addConstraint(Sketcher.Constraint("Vertical", 33, 2, 52, 2))
sketch1.addConstraint(Sketcher.Constraint("Vertical", 31, 2, 54, 2))
sketch1.addConstraint(Sketcher.Constraint("Vertical", 29, 2, 56, 2))
sketch1.addConstraint(Sketcher.Constraint("Vertical", 27, 2, 58, 2))
sketch1.addConstraint(Sketcher.Constraint("Vertical", 25, 2, 60, 2))
sketch1.addConstraint(Sketcher.Constraint("Vertical", 23, 2, 62, 2))
sketch1.addConstraint(Sketcher.Constraint("Vertical", 21, 2, 64, 2))
sketch1.addConstraint(Sketcher.Constraint("Equal", 26, 30))
sketch1.addConstraint(Sketcher.Constraint("Equal", 18, 34))
sketch1.addConstraint(Sketcher.Constraint("Equal", 52, 1))
sketch1.addConstraint(Sketcher.Constraint("Equal", 66, 3))
sketch1.addConstraint(Sketcher.Constraint("Equal", 64, 5))
sketch1.addConstraint(Sketcher.Constraint("Equal", 62, 7))
sketch1.addConstraint(Sketcher.Constraint("Equal", 60, 9))
sketch1.addConstraint(Sketcher.Constraint("Equal", 7, 11))
sketch1.addConstraint(Sketcher.Constraint("Equal", 5, 13))
sketch1.addConstraint(Sketcher.Constraint("Equal", 54, 15))
sketch1.addConstraint(Sketcher.Constraint("Equal", 1, 17))
sketch1.addConstraint(Sketcher.Constraint("Equal", 16, 19))
sketch1.addConstraint(Sketcher.Constraint("Equal", 33, 53))
sketch1.addConstraint(Sketcher.Constraint("DistanceX", -1, 1, 32, 2, Q("60.325001 mm")))
sketch1.addConstraint(Sketcher.Constraint("DistanceX", 2, 2, 2, 1, Q("3.98639 mm")))
sketch1.addConstraint(Sketcher.Constraint("DistanceX", 20, 1, 20, 2, Q("10.30111 mm")))
sketch1.addConstraint(Sketcher.Constraint("DistanceY", -1, 1, 1, 2, Q("210.8311 mm")))
sketch1.addConstraint(Sketcher.Constraint("DistanceY", -1, 1, 15, 2, Q("150.5061 mm")))
sketch1.addConstraint(Sketcher.Constraint("DistanceX", 0, 2, 0, 1, Q("5.997222 mm")))
sketch1.addConstraint(Sketcher.Constraint("DistanceX", 22, 1, 22, 2, Q("7.725834 mm")))
sketch1.addConstraint(Sketcher.Constraint("DistanceX", 24, 1, 24, 2, Q("8.290277 mm")))
sketch1.addConstraint(Sketcher.Constraint("DistanceX", 26, 1, 26, 2, Q("7.690556 mm")))
sketch1.addConstraint(Sketcher.Constraint("DistanceX", 36, 1, 36, 2, Q("3.986387 mm")))
pad1 = body.newObject("PartDesign::Pad", "Pad")
pad1.Profile = sketch1
pad1.Length = 3.7

doc.recompute()
